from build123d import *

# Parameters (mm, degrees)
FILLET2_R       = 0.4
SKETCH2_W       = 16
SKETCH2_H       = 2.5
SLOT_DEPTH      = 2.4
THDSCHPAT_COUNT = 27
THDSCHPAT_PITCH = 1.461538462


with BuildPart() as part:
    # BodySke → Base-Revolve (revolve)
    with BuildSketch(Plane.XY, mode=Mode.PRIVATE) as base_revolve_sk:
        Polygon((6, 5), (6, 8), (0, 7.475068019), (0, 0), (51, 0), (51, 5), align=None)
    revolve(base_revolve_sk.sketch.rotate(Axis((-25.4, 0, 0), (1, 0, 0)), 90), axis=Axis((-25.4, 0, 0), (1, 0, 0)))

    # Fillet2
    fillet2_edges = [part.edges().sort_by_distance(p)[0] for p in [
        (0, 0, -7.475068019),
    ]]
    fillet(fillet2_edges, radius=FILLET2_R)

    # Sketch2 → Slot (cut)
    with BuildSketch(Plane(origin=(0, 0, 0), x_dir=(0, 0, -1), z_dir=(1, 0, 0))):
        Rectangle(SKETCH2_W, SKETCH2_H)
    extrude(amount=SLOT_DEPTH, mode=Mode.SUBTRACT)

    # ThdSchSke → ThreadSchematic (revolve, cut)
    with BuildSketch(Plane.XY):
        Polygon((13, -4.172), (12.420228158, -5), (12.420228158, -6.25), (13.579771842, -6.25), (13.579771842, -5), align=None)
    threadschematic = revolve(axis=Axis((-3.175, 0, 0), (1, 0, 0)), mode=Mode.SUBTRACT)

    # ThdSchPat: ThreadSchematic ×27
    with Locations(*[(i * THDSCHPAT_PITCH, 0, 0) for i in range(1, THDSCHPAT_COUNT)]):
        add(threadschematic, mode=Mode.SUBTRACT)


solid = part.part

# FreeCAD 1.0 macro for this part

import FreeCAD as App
import Part
import Sketcher
Q = App.Units.Quantity


def edges_at(feature, points):
    """Names of the edges that pass closest to the given points."""
    edges = feature.Shape.Edges
    near = lambda p: min(range(len(edges)), key=lambda i: edges[i].distToShape(Part.Vertex(*p))[0])
    return sorted({f"Edge{near(p) + 1}" for p in points})

doc = App.newDocument("Part")
body = doc.addObject("PartDesign::Body", "Body")

# Sketch on XY plane
sketch1 = body.newObject("Sketcher::SketchObject", "Sketch")
sketch1.AttachmentSupport = (doc.getObject("XY_Plane"), [""])
sketch1.MapMode = "FlatFace"
sketch1.addGeometry([
    Part.LineSegment(App.Vector(6, 5, 0), App.Vector(6, 8, 0)),  # 0
    Part.LineSegment(App.Vector(6, 8, 0), App.Vector(0, 7.5, 0)),  # 1
    Part.LineSegment(App.Vector(0, 7.5, 0), App.Vector(0, 0, 0)),  # 2
    Part.LineSegment(App.Vector(0, 0, 0), App.Vector(51, 0, 0)),  # 3
    Part.LineSegment(App.Vector(51, 0, 0), App.Vector(51, 5, 0)),  # 4
    Part.LineSegment(App.Vector(51, 5, 0), App.Vector(6, 5, 0)),  # 5
], False)
sketch1.addConstraint([
    Sketcher.Constraint("Coincident", 0, 2, 1, 1),
    Sketcher.Constraint("Coincident", 1, 2, 2, 1),
    Sketcher.Constraint("Coincident", 2, 2, 3, 1),
    Sketcher.Constraint("Coincident", 3, 2, 4, 1),
    Sketcher.Constraint("Coincident", 4, 2, 5, 1),
    Sketcher.Constraint("Coincident", 5, 2, 0, 1),
    Sketcher.Constraint("Vertical", 0),
    Sketcher.Constraint("Vertical", 2),
    Sketcher.Constraint("Horizontal", 3),
    Sketcher.Constraint("Vertical", 4),
    Sketcher.Constraint("Horizontal", 5),
    Sketcher.Constraint("Coincident", 2, 2, -1, 1),
    Sketcher.Constraint("DistanceX", 3, 1, 3, 2, 51.0),
    Sketcher.Constraint("DistanceX", 5, 2, 5, 1, 45.0),
    Sketcher.Constraint("DistanceY", 0, 1, 0, 2, 3.0),
    Sketcher.Constraint("DistanceY", 4, 1, 4, 2, 5.0),
    Sketcher.Constraint("Angle", 1, Q("-175 deg")),
])
revolution = body.newObject("PartDesign::Revolution", "Revolution")
revolution.Profile = sketch1
revolution.ReferenceAxis = (sketch1, ["H_Axis"])
revolution.Angle = 360
doc.recompute()

fillet = body.newObject("PartDesign::Fillet", "Fillet")
fillet.Base = (revolution, edges_at(revolution, [(0, 0, -7.475)]))
fillet.Radius = 0.4

# Sketch on YZ plane
sketch2 = body.newObject("Sketcher::SketchObject", "Sketch001")
sketch2.AttachmentSupport = (doc.getObject("YZ_Plane"), [""])
sketch2.MapMode = "FlatFace"
sketch2.addGeometry([
    Part.LineSegment(App.Vector(1.2, 8, 0), App.Vector(-1.2, 8, 0)),
    Part.LineSegment(App.Vector(-1.2, 8, 0), App.Vector(-1.2, -8, 0)),
    Part.LineSegment(App.Vector(-1.2, -8, 0), App.Vector(1.2, -8, 0)),
    Part.LineSegment(App.Vector(1.2, -8, 0), App.Vector(1.2, 8, 0)),
], False)
sketch2.addConstraint([
    Sketcher.Constraint("Coincident", 0, 2, 1, 1),
    Sketcher.Constraint("Coincident", 1, 2, 2, 1),
    Sketcher.Constraint("Coincident", 2, 2, 3, 1),
    Sketcher.Constraint("Coincident", 3, 2, 0, 1),
    Sketcher.Constraint("Horizontal", 0),
    Sketcher.Constraint("Vertical", 1),
    Sketcher.Constraint("Horizontal", 2),
    Sketcher.Constraint("Vertical", 3),
    Sketcher.Constraint("Symmetric", 0, 2, 2, 2, -1, 1),
    Sketcher.Constraint("DistanceY", 1, 2, 1, 1, 16.0),
    Sketcher.Constraint("DistanceX", 0, 2, 0, 1, 2.5),
])
pocket1 = body.newObject("PartDesign::Pocket", "Pocket")
pocket1.Profile = sketch2
pocket1.Length = 2.4
pocket1.Reversed = True

# Sketch on XY plane
sketch3 = body.newObject("Sketcher::SketchObject", "Sketch002")
sketch3.AttachmentSupport = (doc.getObject("XY_Plane"), [""])
sketch3.MapMode = "FlatFace"
sketch3.addGeometry([
    Part.LineSegment(App.Vector(13, -4.2, 0), App.Vector(12.4, -5, 0)),  # 0
    Part.LineSegment(App.Vector(12.4, -5, 0), App.Vector(12.4, -6.2, 0)),  # 1
    Part.LineSegment(App.Vector(12.4, -6.2, 0), App.Vector(13.6, -6.2, 0)),  # 2
    Part.LineSegment(App.Vector(13.6, -6.2, 0), App.Vector(13.6, -5, 0)),  # 3
    Part.LineSegment(App.Vector(13.6, -5, 0), App.Vector(13, -4.2, 0)),  # 4
], False)
sketch3.addConstraint([
    Sketcher.Constraint("Coincident", 0, 2, 1, 1),
    Sketcher.Constraint("Coincident", 1, 2, 2, 1),
    Sketcher.Constraint("Coincident", 2, 2, 3, 1),
    Sketcher.Constraint("Coincident", 3, 2, 4, 1),
    Sketcher.Constraint("Coincident", 4, 2, 0, 1),
    Sketcher.Constraint("Vertical", 1),
    Sketcher.Constraint("Horizontal", 2),
    Sketcher.Constraint("Vertical", 3),
    Sketcher.Constraint("Horizontal", 0, 2, 3, 2),
    Sketcher.Constraint("Equal", 0, 4),
    Sketcher.Constraint("Angle", 0, Q("-125 deg")),
    Sketcher.Constraint("DistanceY", 0, 2, -1, 1, 5.0),
    Sketcher.Constraint("DistanceX", -1, 1, 4, 2, 13.0),
    Sketcher.Constraint("DistanceY", 1, 2, 1, 1, 1.25),
    Sketcher.Constraint("DistanceY", 4, 2, -1, 1, 4.172),
])
groove = body.newObject("PartDesign::Groove", "Groove")
groove.Profile = sketch3
groove.ReferenceAxis = (sketch3, ["H_Axis"])
groove.Angle = 360
doc.recompute()

linearpattern = body.newObject("PartDesign::LinearPattern", "LinearPattern")
linearpattern.Originals = [groove]
linearpattern.Direction = (doc.getObject("X_Axis"), [""])
linearpattern.Mode = "offset"
linearpattern.Offset = 1.461538
linearpattern.Occurrences = 27
body.Tip = linearpattern

doc.recompute()
